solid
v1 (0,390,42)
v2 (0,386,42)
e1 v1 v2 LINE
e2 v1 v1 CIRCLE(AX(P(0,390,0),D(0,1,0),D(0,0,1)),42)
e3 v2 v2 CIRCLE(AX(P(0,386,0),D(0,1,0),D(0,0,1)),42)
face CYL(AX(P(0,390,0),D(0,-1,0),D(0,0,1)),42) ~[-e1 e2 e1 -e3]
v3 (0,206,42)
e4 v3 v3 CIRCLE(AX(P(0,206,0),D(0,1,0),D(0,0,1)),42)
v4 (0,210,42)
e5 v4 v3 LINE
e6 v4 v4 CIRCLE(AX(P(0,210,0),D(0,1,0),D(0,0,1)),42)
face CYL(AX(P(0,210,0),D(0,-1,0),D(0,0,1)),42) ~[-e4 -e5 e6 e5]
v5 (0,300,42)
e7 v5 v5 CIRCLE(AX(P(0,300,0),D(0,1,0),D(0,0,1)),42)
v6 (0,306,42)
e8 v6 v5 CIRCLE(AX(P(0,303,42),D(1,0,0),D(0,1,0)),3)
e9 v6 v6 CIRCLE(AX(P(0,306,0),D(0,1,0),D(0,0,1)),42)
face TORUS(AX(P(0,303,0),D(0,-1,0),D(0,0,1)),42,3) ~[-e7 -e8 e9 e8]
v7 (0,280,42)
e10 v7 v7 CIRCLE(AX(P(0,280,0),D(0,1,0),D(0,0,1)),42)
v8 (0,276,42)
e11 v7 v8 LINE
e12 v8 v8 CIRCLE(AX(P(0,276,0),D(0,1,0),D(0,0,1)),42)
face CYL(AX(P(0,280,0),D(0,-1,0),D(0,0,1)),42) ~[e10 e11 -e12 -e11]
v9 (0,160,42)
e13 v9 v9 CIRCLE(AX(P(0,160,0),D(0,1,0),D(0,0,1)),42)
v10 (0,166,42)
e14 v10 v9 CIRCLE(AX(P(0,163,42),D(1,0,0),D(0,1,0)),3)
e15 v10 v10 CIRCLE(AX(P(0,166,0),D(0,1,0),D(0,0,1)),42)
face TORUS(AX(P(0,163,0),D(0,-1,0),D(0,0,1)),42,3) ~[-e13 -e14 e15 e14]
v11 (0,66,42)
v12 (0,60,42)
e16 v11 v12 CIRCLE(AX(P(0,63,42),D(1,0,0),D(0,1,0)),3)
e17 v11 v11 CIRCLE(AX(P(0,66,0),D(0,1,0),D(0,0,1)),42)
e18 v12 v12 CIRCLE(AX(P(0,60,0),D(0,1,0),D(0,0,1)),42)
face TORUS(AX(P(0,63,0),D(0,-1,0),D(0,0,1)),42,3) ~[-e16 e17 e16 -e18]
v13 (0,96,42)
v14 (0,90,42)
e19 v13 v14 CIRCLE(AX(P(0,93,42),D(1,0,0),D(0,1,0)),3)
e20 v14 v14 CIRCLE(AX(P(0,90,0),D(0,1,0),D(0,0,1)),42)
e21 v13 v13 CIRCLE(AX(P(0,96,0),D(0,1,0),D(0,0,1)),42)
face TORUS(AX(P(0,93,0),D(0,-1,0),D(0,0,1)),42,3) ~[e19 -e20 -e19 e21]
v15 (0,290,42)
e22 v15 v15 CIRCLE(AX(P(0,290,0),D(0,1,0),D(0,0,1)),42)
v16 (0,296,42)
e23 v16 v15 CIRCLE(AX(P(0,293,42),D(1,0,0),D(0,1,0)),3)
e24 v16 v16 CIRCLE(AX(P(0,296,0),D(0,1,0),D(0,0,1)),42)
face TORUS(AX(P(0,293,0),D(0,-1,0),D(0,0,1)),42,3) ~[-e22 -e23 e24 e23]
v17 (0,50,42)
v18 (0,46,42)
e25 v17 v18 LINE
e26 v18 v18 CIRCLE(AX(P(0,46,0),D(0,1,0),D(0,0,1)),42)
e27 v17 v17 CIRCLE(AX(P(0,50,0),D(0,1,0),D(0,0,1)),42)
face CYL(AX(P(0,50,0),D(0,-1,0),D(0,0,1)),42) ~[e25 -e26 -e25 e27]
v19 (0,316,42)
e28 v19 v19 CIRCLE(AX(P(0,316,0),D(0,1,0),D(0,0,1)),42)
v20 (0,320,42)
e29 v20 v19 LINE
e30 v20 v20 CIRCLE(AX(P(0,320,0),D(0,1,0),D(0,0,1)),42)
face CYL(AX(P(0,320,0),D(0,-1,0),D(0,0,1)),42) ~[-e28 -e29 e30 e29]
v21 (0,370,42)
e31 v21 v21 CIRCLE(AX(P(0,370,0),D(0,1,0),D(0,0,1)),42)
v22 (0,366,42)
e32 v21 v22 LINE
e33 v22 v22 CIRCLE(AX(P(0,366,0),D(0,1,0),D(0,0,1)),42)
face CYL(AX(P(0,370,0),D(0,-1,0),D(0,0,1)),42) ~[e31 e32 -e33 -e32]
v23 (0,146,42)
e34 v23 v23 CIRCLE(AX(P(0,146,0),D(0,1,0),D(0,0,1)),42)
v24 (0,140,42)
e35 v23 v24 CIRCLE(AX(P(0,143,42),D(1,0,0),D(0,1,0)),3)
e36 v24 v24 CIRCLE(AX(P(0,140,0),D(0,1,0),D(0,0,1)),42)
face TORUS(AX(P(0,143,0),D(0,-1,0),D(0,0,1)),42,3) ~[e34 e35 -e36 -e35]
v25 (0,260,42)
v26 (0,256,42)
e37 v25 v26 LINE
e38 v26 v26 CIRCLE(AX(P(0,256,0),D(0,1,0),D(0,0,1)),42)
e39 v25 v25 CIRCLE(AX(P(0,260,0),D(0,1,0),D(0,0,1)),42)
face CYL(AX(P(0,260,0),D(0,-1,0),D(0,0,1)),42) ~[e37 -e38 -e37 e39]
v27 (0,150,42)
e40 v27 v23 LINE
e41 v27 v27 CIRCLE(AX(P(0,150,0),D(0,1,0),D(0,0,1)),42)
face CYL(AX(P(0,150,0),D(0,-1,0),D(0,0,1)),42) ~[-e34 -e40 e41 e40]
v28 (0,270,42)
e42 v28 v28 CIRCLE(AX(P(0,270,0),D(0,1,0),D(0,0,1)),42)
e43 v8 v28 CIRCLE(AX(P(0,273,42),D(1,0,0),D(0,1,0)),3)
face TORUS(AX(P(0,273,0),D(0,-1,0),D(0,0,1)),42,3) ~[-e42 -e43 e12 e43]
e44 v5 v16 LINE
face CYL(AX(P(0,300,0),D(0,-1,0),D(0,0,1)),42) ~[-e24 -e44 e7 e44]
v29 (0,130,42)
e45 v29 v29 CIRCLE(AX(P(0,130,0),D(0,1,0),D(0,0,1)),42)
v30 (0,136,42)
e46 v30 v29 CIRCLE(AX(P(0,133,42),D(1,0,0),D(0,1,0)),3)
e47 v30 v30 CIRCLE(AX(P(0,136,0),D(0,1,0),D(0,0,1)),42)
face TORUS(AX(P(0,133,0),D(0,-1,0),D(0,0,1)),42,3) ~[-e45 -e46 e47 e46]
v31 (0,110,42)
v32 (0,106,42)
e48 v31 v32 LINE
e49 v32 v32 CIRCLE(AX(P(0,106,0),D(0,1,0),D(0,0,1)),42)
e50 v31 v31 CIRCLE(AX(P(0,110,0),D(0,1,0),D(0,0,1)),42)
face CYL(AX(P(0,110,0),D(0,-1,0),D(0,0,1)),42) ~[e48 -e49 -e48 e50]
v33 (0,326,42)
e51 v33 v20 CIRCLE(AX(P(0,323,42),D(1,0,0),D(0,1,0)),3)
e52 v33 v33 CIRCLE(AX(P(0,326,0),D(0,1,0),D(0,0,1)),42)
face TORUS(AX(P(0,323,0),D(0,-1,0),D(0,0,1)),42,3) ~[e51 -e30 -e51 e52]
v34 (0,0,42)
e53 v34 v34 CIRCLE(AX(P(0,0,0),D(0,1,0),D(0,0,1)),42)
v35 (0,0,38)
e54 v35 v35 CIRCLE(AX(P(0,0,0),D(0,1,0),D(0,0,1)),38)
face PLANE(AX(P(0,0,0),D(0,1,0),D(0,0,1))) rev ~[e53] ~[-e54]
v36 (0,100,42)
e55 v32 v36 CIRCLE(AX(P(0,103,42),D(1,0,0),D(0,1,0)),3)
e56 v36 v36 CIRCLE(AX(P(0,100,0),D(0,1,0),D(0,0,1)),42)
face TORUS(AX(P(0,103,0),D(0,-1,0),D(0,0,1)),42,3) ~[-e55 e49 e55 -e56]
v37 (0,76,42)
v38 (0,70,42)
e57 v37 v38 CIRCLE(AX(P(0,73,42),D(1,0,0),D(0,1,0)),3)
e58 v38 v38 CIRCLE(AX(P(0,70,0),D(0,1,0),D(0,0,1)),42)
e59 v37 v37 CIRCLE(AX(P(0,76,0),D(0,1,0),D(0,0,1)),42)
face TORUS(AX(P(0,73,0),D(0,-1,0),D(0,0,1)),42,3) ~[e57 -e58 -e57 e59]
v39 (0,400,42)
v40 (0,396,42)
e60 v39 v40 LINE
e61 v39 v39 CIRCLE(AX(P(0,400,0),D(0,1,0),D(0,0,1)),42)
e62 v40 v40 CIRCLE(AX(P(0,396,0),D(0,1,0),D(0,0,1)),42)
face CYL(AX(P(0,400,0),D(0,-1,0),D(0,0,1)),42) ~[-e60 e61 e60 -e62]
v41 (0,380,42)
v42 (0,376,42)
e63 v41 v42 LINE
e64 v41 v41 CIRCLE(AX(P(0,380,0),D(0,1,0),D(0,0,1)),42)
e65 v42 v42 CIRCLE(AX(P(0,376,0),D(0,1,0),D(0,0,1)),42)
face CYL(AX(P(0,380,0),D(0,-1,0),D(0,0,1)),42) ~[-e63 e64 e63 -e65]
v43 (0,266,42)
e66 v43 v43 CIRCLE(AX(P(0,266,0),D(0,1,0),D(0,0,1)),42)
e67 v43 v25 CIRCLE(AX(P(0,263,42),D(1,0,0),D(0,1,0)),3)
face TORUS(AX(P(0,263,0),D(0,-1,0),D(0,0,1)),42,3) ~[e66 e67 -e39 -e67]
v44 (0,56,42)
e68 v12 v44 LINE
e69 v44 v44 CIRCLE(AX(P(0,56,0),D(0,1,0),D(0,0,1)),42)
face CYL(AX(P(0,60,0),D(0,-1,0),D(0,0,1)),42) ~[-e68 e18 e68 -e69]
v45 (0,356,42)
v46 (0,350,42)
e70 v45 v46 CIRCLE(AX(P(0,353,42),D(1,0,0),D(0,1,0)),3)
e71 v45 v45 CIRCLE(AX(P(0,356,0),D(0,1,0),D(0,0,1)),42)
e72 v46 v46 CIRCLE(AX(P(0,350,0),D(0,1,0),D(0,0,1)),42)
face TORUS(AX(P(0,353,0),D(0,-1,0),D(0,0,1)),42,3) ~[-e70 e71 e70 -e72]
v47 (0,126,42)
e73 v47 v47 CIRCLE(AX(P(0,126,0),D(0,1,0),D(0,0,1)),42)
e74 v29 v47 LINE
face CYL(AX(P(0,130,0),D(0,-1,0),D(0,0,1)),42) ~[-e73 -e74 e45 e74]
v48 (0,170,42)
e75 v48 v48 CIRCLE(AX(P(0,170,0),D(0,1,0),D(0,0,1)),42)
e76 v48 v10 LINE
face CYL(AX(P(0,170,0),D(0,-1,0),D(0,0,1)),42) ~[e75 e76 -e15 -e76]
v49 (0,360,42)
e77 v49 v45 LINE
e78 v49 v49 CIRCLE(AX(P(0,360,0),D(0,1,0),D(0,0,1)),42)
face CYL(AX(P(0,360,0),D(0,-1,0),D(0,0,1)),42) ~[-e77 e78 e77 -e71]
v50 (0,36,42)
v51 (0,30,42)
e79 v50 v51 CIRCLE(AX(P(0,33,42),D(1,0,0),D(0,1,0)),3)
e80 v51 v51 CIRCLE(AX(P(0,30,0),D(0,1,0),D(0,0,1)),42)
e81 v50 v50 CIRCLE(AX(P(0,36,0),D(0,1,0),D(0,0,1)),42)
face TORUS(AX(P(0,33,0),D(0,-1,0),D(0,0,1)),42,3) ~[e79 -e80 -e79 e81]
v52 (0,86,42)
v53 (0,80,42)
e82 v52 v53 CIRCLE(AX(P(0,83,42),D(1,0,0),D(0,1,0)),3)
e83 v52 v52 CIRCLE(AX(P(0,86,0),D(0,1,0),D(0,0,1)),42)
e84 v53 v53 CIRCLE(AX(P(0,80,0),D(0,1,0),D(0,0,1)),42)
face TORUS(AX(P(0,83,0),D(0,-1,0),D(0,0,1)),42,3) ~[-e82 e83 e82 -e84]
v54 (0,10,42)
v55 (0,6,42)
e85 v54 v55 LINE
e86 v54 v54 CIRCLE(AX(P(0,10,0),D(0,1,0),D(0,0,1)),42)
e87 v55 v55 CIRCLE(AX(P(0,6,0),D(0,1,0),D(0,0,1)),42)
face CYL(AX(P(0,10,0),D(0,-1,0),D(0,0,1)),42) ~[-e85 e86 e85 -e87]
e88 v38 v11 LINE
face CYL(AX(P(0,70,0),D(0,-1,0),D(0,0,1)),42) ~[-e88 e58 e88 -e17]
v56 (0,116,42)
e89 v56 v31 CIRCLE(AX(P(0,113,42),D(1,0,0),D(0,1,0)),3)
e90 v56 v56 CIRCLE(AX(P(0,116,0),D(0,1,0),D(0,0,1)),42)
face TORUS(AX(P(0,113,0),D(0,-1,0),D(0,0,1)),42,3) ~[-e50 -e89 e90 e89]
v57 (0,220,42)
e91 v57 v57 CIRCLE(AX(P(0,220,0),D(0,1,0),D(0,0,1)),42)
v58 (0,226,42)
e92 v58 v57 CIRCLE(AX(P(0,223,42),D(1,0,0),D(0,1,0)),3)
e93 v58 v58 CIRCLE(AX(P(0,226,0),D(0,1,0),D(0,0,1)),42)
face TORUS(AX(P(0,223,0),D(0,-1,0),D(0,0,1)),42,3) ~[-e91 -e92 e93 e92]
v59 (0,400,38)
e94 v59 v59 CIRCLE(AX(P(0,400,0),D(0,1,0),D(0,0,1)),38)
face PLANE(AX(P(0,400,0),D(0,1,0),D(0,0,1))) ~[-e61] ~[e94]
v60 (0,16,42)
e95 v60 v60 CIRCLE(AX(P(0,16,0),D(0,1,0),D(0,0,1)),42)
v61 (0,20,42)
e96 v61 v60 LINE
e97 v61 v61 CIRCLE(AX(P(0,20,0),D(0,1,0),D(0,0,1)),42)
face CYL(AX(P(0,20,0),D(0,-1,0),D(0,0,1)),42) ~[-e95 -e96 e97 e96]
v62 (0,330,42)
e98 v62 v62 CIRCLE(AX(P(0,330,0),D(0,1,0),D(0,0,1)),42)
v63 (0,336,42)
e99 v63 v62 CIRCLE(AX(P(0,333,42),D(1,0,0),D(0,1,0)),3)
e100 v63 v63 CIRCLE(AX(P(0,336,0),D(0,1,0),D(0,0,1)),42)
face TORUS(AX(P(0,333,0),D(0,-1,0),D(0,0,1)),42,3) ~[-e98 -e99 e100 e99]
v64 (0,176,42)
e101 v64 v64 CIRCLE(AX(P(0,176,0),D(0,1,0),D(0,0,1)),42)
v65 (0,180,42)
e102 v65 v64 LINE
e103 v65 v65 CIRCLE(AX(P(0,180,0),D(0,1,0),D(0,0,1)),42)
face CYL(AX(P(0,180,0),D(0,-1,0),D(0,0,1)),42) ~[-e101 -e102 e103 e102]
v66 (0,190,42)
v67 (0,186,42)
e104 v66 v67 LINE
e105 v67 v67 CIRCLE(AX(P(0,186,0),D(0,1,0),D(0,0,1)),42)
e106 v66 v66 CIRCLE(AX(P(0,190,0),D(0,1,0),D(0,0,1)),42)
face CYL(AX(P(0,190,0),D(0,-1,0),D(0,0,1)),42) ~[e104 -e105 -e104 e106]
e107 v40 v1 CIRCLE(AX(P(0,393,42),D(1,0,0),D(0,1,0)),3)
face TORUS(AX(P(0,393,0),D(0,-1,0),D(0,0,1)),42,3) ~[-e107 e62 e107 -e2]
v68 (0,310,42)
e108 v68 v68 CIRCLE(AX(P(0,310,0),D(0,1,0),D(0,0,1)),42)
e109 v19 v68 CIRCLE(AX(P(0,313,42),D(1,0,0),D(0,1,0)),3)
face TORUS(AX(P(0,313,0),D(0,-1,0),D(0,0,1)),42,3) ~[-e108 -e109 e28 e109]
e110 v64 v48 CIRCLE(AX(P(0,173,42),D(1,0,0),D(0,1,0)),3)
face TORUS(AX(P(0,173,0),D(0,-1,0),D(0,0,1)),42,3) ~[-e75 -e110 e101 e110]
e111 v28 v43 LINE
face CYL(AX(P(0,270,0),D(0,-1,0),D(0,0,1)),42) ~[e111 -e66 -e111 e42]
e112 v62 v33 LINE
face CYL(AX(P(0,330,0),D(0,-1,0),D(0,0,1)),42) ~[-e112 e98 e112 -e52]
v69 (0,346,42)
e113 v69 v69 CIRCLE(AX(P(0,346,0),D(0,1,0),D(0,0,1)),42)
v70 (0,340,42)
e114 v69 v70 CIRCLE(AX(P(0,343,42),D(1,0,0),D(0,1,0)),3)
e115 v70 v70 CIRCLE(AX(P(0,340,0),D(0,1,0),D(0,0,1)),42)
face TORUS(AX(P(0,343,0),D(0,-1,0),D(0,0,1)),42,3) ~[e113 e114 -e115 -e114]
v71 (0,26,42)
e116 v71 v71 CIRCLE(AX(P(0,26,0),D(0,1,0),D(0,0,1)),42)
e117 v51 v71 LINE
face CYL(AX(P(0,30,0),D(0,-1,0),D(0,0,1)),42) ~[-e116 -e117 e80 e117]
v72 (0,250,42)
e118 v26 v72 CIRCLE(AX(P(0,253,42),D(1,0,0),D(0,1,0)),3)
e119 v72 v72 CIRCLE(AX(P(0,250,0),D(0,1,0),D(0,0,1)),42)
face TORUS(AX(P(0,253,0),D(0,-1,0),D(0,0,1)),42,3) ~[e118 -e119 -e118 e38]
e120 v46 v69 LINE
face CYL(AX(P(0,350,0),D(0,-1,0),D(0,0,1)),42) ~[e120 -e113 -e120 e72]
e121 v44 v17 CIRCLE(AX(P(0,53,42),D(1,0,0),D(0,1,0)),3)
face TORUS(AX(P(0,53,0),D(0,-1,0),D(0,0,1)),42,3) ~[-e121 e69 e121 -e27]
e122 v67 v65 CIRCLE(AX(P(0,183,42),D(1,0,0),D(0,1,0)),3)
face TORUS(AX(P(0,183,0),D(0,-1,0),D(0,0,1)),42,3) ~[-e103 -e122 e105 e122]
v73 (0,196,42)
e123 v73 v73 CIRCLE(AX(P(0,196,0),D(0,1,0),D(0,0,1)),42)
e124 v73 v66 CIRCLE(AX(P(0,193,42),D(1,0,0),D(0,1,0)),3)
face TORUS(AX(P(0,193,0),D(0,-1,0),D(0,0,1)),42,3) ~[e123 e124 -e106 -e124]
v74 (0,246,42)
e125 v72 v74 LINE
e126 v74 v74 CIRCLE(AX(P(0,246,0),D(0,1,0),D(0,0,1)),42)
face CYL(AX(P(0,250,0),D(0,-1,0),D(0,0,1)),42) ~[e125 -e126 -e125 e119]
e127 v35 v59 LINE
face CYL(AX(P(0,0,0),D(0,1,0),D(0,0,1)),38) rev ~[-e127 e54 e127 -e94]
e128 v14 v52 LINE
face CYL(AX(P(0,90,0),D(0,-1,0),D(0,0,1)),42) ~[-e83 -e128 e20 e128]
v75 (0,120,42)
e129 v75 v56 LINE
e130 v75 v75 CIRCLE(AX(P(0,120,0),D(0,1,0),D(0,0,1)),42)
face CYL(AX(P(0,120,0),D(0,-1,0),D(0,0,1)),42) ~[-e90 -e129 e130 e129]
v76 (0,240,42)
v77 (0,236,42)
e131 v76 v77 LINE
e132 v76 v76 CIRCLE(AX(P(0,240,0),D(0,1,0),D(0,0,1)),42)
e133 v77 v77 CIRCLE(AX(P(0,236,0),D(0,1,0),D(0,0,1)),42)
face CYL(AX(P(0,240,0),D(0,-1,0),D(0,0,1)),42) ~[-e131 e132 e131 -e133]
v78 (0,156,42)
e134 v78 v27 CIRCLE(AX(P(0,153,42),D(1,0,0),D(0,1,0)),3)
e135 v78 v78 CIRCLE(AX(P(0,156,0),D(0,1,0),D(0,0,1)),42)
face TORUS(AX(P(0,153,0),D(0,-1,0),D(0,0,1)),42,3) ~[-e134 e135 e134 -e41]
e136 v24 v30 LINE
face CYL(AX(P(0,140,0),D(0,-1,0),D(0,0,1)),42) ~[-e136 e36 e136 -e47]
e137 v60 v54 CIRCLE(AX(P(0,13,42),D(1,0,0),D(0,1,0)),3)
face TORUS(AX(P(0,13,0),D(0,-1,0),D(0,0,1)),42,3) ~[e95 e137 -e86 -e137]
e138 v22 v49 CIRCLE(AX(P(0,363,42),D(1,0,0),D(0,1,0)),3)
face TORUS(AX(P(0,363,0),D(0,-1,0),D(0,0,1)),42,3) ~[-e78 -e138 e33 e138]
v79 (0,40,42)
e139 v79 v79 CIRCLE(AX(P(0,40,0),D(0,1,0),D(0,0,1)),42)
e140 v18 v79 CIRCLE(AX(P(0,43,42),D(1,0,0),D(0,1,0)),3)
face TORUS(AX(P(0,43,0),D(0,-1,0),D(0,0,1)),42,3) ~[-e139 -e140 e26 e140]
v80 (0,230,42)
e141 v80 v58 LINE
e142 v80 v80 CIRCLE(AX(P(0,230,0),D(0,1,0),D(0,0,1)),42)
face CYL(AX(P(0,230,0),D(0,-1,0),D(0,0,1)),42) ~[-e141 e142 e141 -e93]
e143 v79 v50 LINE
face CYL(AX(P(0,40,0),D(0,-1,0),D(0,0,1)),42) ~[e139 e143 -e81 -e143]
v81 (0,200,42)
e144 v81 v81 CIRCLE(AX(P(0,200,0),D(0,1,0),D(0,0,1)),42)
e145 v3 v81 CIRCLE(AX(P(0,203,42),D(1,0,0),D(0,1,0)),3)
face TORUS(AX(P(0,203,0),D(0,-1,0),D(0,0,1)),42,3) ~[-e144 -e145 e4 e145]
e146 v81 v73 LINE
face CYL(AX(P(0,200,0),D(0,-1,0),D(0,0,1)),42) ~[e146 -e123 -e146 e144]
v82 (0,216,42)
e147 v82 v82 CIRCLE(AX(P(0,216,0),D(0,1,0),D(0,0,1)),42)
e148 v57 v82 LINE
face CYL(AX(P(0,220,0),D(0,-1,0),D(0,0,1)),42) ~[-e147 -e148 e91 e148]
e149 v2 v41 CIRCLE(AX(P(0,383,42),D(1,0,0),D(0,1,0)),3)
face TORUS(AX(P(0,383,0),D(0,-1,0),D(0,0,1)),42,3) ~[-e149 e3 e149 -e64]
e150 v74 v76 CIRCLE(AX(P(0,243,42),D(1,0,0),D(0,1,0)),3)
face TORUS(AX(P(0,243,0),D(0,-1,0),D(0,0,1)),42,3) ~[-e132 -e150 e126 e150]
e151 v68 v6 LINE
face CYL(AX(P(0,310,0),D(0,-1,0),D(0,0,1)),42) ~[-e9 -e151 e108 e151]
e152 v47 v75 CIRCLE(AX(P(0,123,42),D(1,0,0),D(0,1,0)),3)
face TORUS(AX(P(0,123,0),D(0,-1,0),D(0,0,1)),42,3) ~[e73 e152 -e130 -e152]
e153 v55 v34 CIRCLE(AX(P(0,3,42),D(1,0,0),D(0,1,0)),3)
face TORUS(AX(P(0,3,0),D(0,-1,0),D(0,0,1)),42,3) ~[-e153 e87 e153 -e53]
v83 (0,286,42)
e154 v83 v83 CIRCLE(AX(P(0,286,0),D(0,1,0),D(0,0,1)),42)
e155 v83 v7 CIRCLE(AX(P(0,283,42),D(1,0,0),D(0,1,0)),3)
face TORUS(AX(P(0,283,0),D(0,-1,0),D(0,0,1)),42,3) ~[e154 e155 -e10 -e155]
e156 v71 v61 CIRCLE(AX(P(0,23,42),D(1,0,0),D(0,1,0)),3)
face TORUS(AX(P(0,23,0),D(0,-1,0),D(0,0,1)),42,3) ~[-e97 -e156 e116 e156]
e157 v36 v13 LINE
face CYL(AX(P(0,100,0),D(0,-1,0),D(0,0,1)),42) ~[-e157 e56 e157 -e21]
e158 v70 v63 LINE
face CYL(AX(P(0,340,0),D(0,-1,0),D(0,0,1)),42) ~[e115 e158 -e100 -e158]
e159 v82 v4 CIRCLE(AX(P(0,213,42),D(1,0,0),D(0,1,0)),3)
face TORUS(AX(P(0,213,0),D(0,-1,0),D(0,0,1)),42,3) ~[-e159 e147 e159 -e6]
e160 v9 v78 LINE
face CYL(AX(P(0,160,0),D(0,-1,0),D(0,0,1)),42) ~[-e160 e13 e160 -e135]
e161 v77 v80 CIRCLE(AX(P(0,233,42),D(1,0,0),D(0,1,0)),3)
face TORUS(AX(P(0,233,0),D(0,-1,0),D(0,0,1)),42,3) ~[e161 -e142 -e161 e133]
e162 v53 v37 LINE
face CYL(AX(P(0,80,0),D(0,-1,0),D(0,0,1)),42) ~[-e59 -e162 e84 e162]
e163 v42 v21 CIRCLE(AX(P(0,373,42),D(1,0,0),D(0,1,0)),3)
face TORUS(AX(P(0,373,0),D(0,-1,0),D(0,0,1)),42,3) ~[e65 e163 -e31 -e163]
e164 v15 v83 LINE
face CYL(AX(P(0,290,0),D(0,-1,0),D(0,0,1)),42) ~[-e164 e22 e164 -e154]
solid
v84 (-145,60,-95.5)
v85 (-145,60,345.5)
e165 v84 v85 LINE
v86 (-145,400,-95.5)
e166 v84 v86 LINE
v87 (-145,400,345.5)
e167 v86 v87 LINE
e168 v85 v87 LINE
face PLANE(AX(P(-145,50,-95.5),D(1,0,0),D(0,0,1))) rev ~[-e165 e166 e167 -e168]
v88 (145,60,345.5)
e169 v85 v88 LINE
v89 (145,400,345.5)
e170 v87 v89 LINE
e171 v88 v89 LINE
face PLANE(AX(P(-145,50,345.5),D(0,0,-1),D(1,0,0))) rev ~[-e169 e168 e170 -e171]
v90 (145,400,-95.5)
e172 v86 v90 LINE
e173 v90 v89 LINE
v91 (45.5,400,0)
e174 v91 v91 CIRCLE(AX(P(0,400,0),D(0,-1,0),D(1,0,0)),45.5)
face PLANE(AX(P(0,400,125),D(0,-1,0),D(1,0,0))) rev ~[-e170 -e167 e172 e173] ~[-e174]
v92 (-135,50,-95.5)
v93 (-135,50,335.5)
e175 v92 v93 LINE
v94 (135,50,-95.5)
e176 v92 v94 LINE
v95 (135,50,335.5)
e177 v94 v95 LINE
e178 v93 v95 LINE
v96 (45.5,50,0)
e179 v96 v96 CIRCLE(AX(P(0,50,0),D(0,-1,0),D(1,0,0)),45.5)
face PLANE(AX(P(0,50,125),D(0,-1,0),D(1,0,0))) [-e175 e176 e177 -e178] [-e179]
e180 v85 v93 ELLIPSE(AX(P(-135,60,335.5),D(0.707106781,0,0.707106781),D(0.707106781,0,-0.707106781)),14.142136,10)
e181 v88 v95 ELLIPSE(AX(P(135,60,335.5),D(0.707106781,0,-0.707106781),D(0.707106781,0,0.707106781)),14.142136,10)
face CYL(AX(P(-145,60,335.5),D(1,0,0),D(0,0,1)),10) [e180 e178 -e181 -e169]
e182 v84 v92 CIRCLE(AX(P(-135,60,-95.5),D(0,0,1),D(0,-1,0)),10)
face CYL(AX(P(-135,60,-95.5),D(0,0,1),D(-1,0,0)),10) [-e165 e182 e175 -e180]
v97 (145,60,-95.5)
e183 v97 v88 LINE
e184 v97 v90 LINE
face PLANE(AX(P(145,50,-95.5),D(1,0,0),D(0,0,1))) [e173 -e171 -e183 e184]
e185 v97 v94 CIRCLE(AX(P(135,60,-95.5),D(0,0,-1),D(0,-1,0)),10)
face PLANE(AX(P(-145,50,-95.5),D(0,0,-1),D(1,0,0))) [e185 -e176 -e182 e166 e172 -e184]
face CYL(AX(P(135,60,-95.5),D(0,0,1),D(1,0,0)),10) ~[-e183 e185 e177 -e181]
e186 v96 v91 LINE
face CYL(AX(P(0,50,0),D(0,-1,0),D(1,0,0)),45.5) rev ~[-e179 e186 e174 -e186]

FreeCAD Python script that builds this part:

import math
import FreeCAD as App
import Part
import Sketcher

V = App.Vector


def edges_at(feature, points):
    """Names of the edges that pass closest to the given points."""
    edges = feature.Shape.Edges
    near = lambda p: min(range(len(edges)), key=lambda i: edges[i].distToShape(Part.Vertex(*p))[0])
    return sorted({f"Edge{near(p) + 1}" for p in points})

doc = App.newDocument("Part")
body = doc.addObject("PartDesign::Body", "Body")

sketch1 = body.newObject("Sketcher::SketchObject", "Sketch")
sketch1.AttachmentSupport = (doc.getObject("YZ_Plane"), [""])
sketch1.MapMode = "FlatFace"
sketch1.addGeometry([
    Part.LineSegment(V(400, 38, 0), V(400, 42, 0)),
    Part.LineSegment(V(400, 42, 0), V(396, 42, 0)),
    Part.ArcOfCircle(Part.Circle(V(393, 42, 0), V(0, 0, 1), 3), math.radians(0), math.radians(180)),
    Part.LineSegment(V(390, 42, 0), V(386, 42, 0)),
    Part.ArcOfCircle(Part.Circle(V(383, 42, 0), V(0, 0, 1), 3), math.radians(0), math.radians(180)),
    Part.LineSegment(V(380, 42, 0), V(376, 42, 0)),
    Part.ArcOfCircle(Part.Circle(V(373, 42, 0), V(0, 0, 1), 3), math.radians(0), math.radians(180)),
    Part.LineSegment(V(370, 42, 0), V(366, 42, 0)),
    Part.ArcOfCircle(Part.Circle(V(363, 42, 0), V(0, 0, 1), 3), math.radians(0), math.radians(180)),
    Part.LineSegment(V(360, 42, 0), V(356, 42, 0)),
    Part.ArcOfCircle(Part.Circle(V(353, 42, 0), V(0, 0, 1), 3), math.radians(0), math.radians(180)),
    Part.LineSegment(V(350, 42, 0), V(346, 42, 0)),
    Part.ArcOfCircle(Part.Circle(V(343, 42, 0), V(0, 0, 1), 3), math.radians(0), math.radians(180)),
    Part.LineSegment(V(340, 42, 0), V(336, 42, 0)),
    Part.ArcOfCircle(Part.Circle(V(333, 42, 0), V(0, 0, 1), 3), math.radians(0), math.radians(180)),
    Part.LineSegment(V(330, 42, 0), V(326, 42, 0)),
    Part.ArcOfCircle(Part.Circle(V(323, 42, 0), V(0, 0, 1), 3), math.radians(0), math.radians(180)),
    Part.LineSegment(V(320, 42, 0), V(316, 42, 0)),
    Part.ArcOfCircle(Part.Circle(V(313, 42, 0), V(0, 0, 1), 3), math.radians(0), math.radians(180)),
    Part.LineSegment(V(310, 42, 0), V(306, 42, 0)),
    Part.ArcOfCircle(Part.Circle(V(303, 42, 0), V(0, 0, 1), 3), math.radians(0), math.radians(180)),
    Part.LineSegment(V(300, 42, 0), V(296, 42, 0)),
    Part.ArcOfCircle(Part.Circle(V(293, 42, 0), V(0, 0, 1), 3), math.radians(0), math.radians(180)),
    Part.LineSegment(V(290, 42, 0), V(286, 42, 0)),
    Part.ArcOfCircle(Part.Circle(V(283, 42, 0), V(0, 0, 1), 3), math.radians(0), math.radians(180)),
    Part.LineSegment(V(280, 42, 0), V(276, 42, 0)),
    Part.ArcOfCircle(Part.Circle(V(273, 42, 0), V(0, 0, 1), 3), math.radians(0), math.radians(180)),
    Part.LineSegment(V(270, 42, 0), V(266, 42, 0)),
    Part.ArcOfCircle(Part.Circle(V(263, 42, 0), V(0, 0, 1), 3), math.radians(0), math.radians(180)),
    Part.LineSegment(V(260, 42, 0), V(256, 42, 0)),
    Part.ArcOfCircle(Part.Circle(V(253, 42, 0), V(0, 0, 1), 3), math.radians(0), math.radians(180)),
    Part.LineSegment(V(250, 42, 0), V(246, 42, 0)),
    Part.ArcOfCircle(Part.Circle(V(243, 42, 0), V(0, 0, 1), 3), math.radians(0), math.radians(180)),
    Part.LineSegment(V(240, 42, 0), V(236, 42, 0)),
    Part.ArcOfCircle(Part.Circle(V(233, 42, 0), V(0, 0, 1), 3), math.radians(0), math.radians(180)),
    Part.LineSegment(V(230, 42, 0), V(226, 42, 0)),
    Part.ArcOfCircle(Part.Circle(V(223, 42, 0), V(0, 0, 1), 3), math.radians(0), math.radians(180)),
    Part.LineSegment(V(220, 42, 0), V(216, 42, 0)),
    Part.ArcOfCircle(Part.Circle(V(213, 42, 0), V(0, 0, 1), 3), math.radians(0), math.radians(180)),
    Part.LineSegment(V(210, 42, 0), V(206, 42, 0)),
    Part.ArcOfCircle(Part.Circle(V(203, 42, 0), V(0, 0, 1), 3), math.radians(0), math.radians(180)),
    Part.LineSegment(V(200, 42, 0), V(196, 42, 0)),
    Part.ArcOfCircle(Part.Circle(V(193, 42, 0), V(0, 0, 1), 3), math.radians(0), math.radians(180)),
    Part.LineSegment(V(190, 42, 0), V(186, 42, 0)),
    Part.ArcOfCircle(Part.Circle(V(183, 42, 0), V(0, 0, 1), 3), math.radians(0), math.radians(180)),
    Part.LineSegment(V(180, 42, 0), V(176, 42, 0)),
    Part.ArcOfCircle(Part.Circle(V(173, 42, 0), V(0, 0, 1), 3), math.radians(0), math.radians(180)),
    Part.LineSegment(V(170, 42, 0), V(166, 42, 0)),
    Part.ArcOfCircle(Part.Circle(V(163, 42, 0), V(0, 0, 1), 3), math.radians(0), math.radians(180)),
    Part.LineSegment(V(160, 42, 0), V(156, 42, 0)),
    Part.ArcOfCircle(Part.Circle(V(153, 42, 0), V(0, 0, 1), 3), math.radians(0), math.radians(180)),
    Part.LineSegment(V(150, 42, 0), V(146, 42, 0)),
    Part.ArcOfCircle(Part.Circle(V(143, 42, 0), V(0, 0, 1), 3), math.radians(0), math.radians(180)),
    Part.LineSegment(V(140, 42, 0), V(136, 42, 0)),
    Part.ArcOfCircle(Part.Circle(V(133, 42, 0), V(0, 0, 1), 3), math.radians(0), math.radians(180)),
    Part.LineSegment(V(130, 42, 0), V(126, 42, 0)),
    Part.ArcOfCircle(Part.Circle(V(123, 42, 0), V(0, 0, 1), 3), math.radians(0), math.radians(180)),
    Part.LineSegment(V(120, 42, 0), V(116, 42, 0)),
    Part.ArcOfCircle(Part.Circle(V(113, 42, 0), V(0, 0, 1), 3), math.radians(0), math.radians(180)),
    Part.LineSegment(V(110, 42, 0), V(106, 42, 0)),
    Part.ArcOfCircle(Part.Circle(V(103, 42, 0), V(0, 0, 1), 3), math.radians(0), math.radians(180)),
    Part.LineSegment(V(100, 42, 0), V(96, 42, 0)),
    Part.ArcOfCircle(Part.Circle(V(93, 42, 0), V(0, 0, 1), 3), math.radians(0), math.radians(180)),
    Part.LineSegment(V(90, 42, 0), V(86, 42, 0)),
    Part.ArcOfCircle(Part.Circle(V(83, 42, 0), V(0, 0, 1), 3), math.radians(0), math.radians(180)),
    Part.LineSegment(V(80, 42, 0), V(76, 42, 0)),
    Part.ArcOfCircle(Part.Circle(V(73, 42, 0), V(0, 0, 1), 3), math.radians(0), math.radians(180)),
    Part.LineSegment(V(70, 42, 0), V(66, 42, 0)),
    Part.ArcOfCircle(Part.Circle(V(63, 42, 0), V(0, 0, 1), 3), math.radians(0), math.radians(180)),
    Part.LineSegment(V(60, 42, 0), V(56, 42, 0)),
    Part.ArcOfCircle(Part.Circle(V(53, 42, 0), V(0, 0, 1), 3), math.radians(0), math.radians(180)),
    Part.LineSegment(V(50, 42, 0), V(46, 42, 0)),
    Part.ArcOfCircle(Part.Circle(V(43, 42, 0), V(0, 0, 1), 3), math.radians(0), math.radians(180)),
    Part.LineSegment(V(40, 42, 0), V(36, 42, 0)),
    Part.ArcOfCircle(Part.Circle(V(33, 42, 0), V(0, 0, 1), 3), math.radians(0), math.radians(180)),
    Part.LineSegment(V(30, 42, 0), V(26, 42, 0)),
    Part.ArcOfCircle(Part.Circle(V(23, 42, 0), V(0, 0, 1), 3), math.radians(0), math.radians(180)),
    Part.LineSegment(V(20, 42, 0), V(16, 42, 0)),
    Part.ArcOfCircle(Part.Circle(V(13, 42, 0), V(0, 0, 1), 3), math.radians(0), math.radians(180)),
    Part.LineSegment(V(10, 42, 0), V(6, 42, 0)),
    Part.ArcOfCircle(Part.Circle(V(3, 42, 0), V(0, 0, 1), 3), math.radians(0), math.radians(180)),
    Part.LineSegment(V(0, 42, 0), V(0, 38, 0)),
    Part.LineSegment(V(0, 38, 0), V(400, 38, 0)),
], False)
sketch1.addConstraint([
    Sketcher.Constraint("Coincident", 0, 2, 1, 1),
    Sketcher.Constraint("Coincident", 1, 2, 2, 1),
    Sketcher.Constraint("Coincident", 2, 2, 3, 1),
    Sketcher.Constraint("Coincident", 3, 2, 4, 1),
    Sketcher.Constraint("Coincident", 4, 2, 5, 1),
    Sketcher.Constraint("Coincident", 5, 2, 6, 1),
    Sketcher.Constraint("Coincident", 6, 2, 7, 1),
    Sketcher.Constraint("Coincident", 7, 2, 8, 1),
    Sketcher.Constraint("Coincident", 8, 2, 9, 1),
    Sketcher.Constraint("Coincident", 9, 2, 10, 1),
    Sketcher.Constraint("Coincident", 10, 2, 11, 1),
    Sketcher.Constraint("Coincident", 11, 2, 12, 1),
    Sketcher.Constraint("Coincident", 12, 2, 13, 1),
    Sketcher.Constraint("Coincident", 13, 2, 14, 1),
    Sketcher.Constraint("Coincident", 14, 2, 15, 1),
    Sketcher.Constraint("Coincident", 15, 2, 16, 1),
    Sketcher.Constraint("Coincident", 16, 2, 17, 1),
    Sketcher.Constraint("Coincident", 17, 2, 18, 1),
    Sketcher.Constraint("Coincident", 18, 2, 19, 1),
    Sketcher.Constraint("Coincident", 19, 2, 20, 1),
    Sketcher.Constraint("Coincident", 20, 2, 21, 1),
    Sketcher.Constraint("Coincident", 21, 2, 22, 1),
    Sketcher.Constraint("Coincident", 22, 2, 23, 1),
    Sketcher.Constraint("Coincident", 23, 2, 24, 1),
    Sketcher.Constraint("Coincident", 24, 2, 25, 1),
    Sketcher.Constraint("Coincident", 25, 2, 26, 1),
    Sketcher.Constraint("Coincident", 26, 2, 27, 1),
    Sketcher.Constraint("Coincident", 27, 2, 28, 1),
    Sketcher.Constraint("Coincident", 28, 2, 29, 1),
    Sketcher.Constraint("Coincident", 29, 2, 30, 1),
    Sketcher.Constraint("Coincident", 30, 2, 31, 1),
    Sketcher.Constraint("Coincident", 31, 2, 32, 1),
    Sketcher.Constraint("Coincident", 32, 2, 33, 1),
    Sketcher.Constraint("Coincident", 33, 2, 34, 1),
    Sketcher.Constraint("Coincident", 34, 2, 35, 1),
    Sketcher.Constraint("Coincident", 35, 2, 36, 1),
    Sketcher.Constraint("Coincident", 36, 2, 37, 1),
    Sketcher.Constraint("Coincident", 37, 2, 38, 1),
    Sketcher.Constraint("Coincident", 38, 2, 39, 1),
    Sketcher.Constraint("Coincident", 39, 2, 40, 1),
    Sketcher.Constraint("Coincident", 40, 2, 41, 1),
    Sketcher.Constraint("Coincident", 41, 2, 42, 1),
    Sketcher.Constraint("Coincident", 42, 2, 43, 1),
    Sketcher.Constraint("Coincident", 43, 2, 44, 1),
    Sketcher.Constraint("Coincident", 44, 2, 45, 1),
    Sketcher.Constraint("Coincident", 45, 2, 46, 1),
    Sketcher.Constraint("Coincident", 46, 2, 47, 1),
    Sketcher.Constraint("Coincident", 47, 2, 48, 1),
    Sketcher.Constraint("Coincident", 48, 2, 49, 1),
    Sketcher.Constraint("Coincident", 49, 2, 50, 1),
    Sketcher.Constraint("Coincident", 50, 2, 51, 1),
    Sketcher.Constraint("Coincident", 51, 2, 52, 1),
    Sketcher.Constraint("Coincident", 52, 2, 53, 1),
    Sketcher.Constraint("Coincident", 53, 2, 54, 1),
    Sketcher.Constraint("Coincident", 54, 2, 55, 1),
    Sketcher.Constraint("Coincident", 55, 2, 56, 1),
    Sketcher.Constraint("Coincident", 56, 2, 57, 1),
    Sketcher.Constraint("Coincident", 57, 2, 58, 1),
    Sketcher.Constraint("Coincident", 58, 2, 59, 1),
    Sketcher.Constraint("Coincident", 59, 2, 60, 1),
    Sketcher.Constraint("Coincident", 60, 2, 61, 1),
    Sketcher.Constraint("Coincident", 61, 2, 62, 1),
    Sketcher.Constraint("Coincident", 62, 2, 63, 1),
    Sketcher.Constraint("Coincident", 63, 2, 64, 1),
    Sketcher.Constraint("Coincident", 64, 2, 65, 1),
    Sketcher.Constraint("Coincident", 65, 2, 66, 1),
    Sketcher.Constraint("Coincident", 66, 2, 67, 1),
    Sketcher.Constraint("Coincident", 67, 2, 68, 1),
    Sketcher.Constraint("Coincident", 68, 2, 69, 1),
    Sketcher.Constraint("Coincident", 69, 2, 70, 1),
    Sketcher.Constraint("Coincident", 70, 2, 71, 1),
    Sketcher.Constraint("Coincident", 71, 2, 72, 1),
    Sketcher.Constraint("Coincident", 72, 2, 73, 1),
    Sketcher.Constraint("Coincident", 73, 2, 74, 1),
    Sketcher.Constraint("Coincident", 74, 2, 75, 1),
    Sketcher.Constraint("Coincident", 75, 2, 76, 1),
    Sketcher.Constraint("Coincident", 76, 2, 77, 1),
    Sketcher.Constraint("Coincident", 77, 2, 78, 1),
    Sketcher.Constraint("Coincident", 78, 2, 79, 1),
    Sketcher.Constraint("Coincident", 79, 2, 80, 1),
    Sketcher.Constraint("Tangent", 80, 2, 81, 1),
    Sketcher.Constraint("Coincident", 81, 2, 82, 1),
    Sketcher.Constraint("Coincident", 82, 2, 0, 1),
    Sketcher.Constraint("Vertical", 0),
    Sketcher.Constraint("Horizontal", 1),
    Sketcher.Constraint("Horizontal", 3),
    Sketcher.Constraint("Horizontal", 5),
    Sketcher.Constraint("Horizontal", 7),
    Sketcher.Constraint("Horizontal", 9),
    Sketcher.Constraint("Horizontal", 11),
    Sketcher.Constraint("Horizontal", 13),
    Sketcher.Constraint("Horizontal", 15),
    Sketcher.Constraint("Horizontal", 17),
    Sketcher.Constraint("Horizontal", 19),
    Sketcher.Constraint("Horizontal", 21),
    Sketcher.Constraint("Horizontal", 23),
    Sketcher.Constraint("Horizontal", 25),
    Sketcher.Constraint("Horizontal", 27),
    Sketcher.Constraint("Horizontal", 29),
    Sketcher.Constraint("Horizontal", 31),
    Sketcher.Constraint("Horizontal", 33),
    Sketcher.Constraint("Horizontal", 35),
    Sketcher.Constraint("Horizontal", 37),
    Sketcher.Constraint("Horizontal", 39),
    Sketcher.Constraint("Horizontal", 41),
    Sketcher.Constraint("Horizontal", 43),
    Sketcher.Constraint("Horizontal", 45),
    Sketcher.Constraint("Horizontal", 47),
    Sketcher.Constraint("Horizontal", 49),
    Sketcher.Constraint("Horizontal", 51),
    Sketcher.Constraint("Horizontal", 53),
    Sketcher.Constraint("Horizontal", 55),
    Sketcher.Constraint("Horizontal", 57),
    Sketcher.Constraint("Horizontal", 59),
    Sketcher.Constraint("Horizontal", 61),
    Sketcher.Constraint("Horizontal", 63),
    Sketcher.Constraint("Horizontal", 65),
    Sketcher.Constraint("Horizontal", 67),
    Sketcher.Constraint("Horizontal", 69),
    Sketcher.Constraint("Horizontal", 71),
    Sketcher.Constraint("Horizontal", 73),
    Sketcher.Constraint("Horizontal", 75),
    Sketcher.Constraint("Horizontal", 77),
    Sketcher.Constraint("Horizontal", 79),
    Sketcher.Constraint("Vertical", 81),
    Sketcher.Constraint("Horizontal", 82),
    Sketcher.Constraint("Equal", 2, 4),
    Sketcher.Constraint("Equal", 4, 6),
    Sketcher.Constraint("Equal", 6, 8),
    Sketcher.Constraint("Equal", 8, 10),
    Sketcher.Constraint("Equal", 10, 12),
    Sketcher.Constraint("Equal", 12, 14),
    Sketcher.Constraint("Equal", 14, 16),
    Sketcher.Constraint("Equal", 16, 18),
    Sketcher.Constraint("Equal", 18, 20),
    Sketcher.Constraint("Equal", 20, 22),
    Sketcher.Constraint("Equal", 22, 24),
    Sketcher.Constraint("Equal", 24, 26),
    Sketcher.Constraint("Equal", 26, 28),
    Sketcher.Constraint("Equal", 28, 30),
    Sketcher.Constraint("Equal", 30, 32),
    Sketcher.Constraint("Equal", 32, 34),
    Sketcher.Constraint("Equal", 34, 36),
    Sketcher.Constraint("Equal", 36, 38),
    Sketcher.Constraint("Equal", 38, 40),
    Sketcher.Constraint("Equal", 40, 42),
    Sketcher.Constraint("Equal", 42, 44),
    Sketcher.Constraint("Equal", 44, 46),
    Sketcher.Constraint("Equal", 46, 48),
    Sketcher.Constraint("Equal", 48, 50),
    Sketcher.Constraint("Equal", 50, 52),
    Sketcher.Constraint("Equal", 52, 54),
    Sketcher.Constraint("Equal", 54, 56),
    Sketcher.Constraint("Equal", 56, 58),
    Sketcher.Constraint("Equal", 58, 60),
    Sketcher.Constraint("Equal", 60, 62),
    Sketcher.Constraint("Equal", 62, 64),
    Sketcher.Constraint("Equal", 64, 66),
    Sketcher.Constraint("Equal", 66, 68),
    Sketcher.Constraint("Equal", 68, 70),
    Sketcher.Constraint("Equal", 70, 72),
    Sketcher.Constraint("Equal", 72, 74),
    Sketcher.Constraint("Equal", 74, 76),
    Sketcher.Constraint("Equal", 76, 78),
    Sketcher.Constraint("Equal", 78, 80),
    Sketcher.Constraint("PointOnObject", 80, 2, -2),
    Sketcher.Constraint("Horizontal", 2, 3, 4, 3),
    Sketcher.Constraint("Horizontal", 4, 3, 6, 3),
    Sketcher.Constraint("Horizontal", 6, 3, 8, 3),
    Sketcher.Constraint("Horizontal", 8, 3, 10, 3),
    Sketcher.Constraint("Horizontal", 10, 3, 12, 3),
    Sketcher.Constraint("Horizontal", 12, 3, 14, 3),
    Sketcher.Constraint("Horizontal", 14, 3, 16, 3),
    Sketcher.Constraint("Horizontal", 16, 3, 18, 3),
    Sketcher.Constraint("Horizontal", 18, 3, 20, 3),
    Sketcher.Constraint("Horizontal", 20, 3, 22, 3),
    Sketcher.Constraint("Horizontal", 22, 3, 24, 3),
    Sketcher.Constraint("Horizontal", 24, 3, 26, 3),
    Sketcher.Constraint("Horizontal", 26, 3, 28, 3),
    Sketcher.Constraint("Horizontal", 28, 3, 30, 3),
    Sketcher.Constraint("Horizontal", 30, 3, 32, 3),
    Sketcher.Constraint("Horizontal", 32, 3, 34, 3),
    Sketcher.Constraint("Horizontal", 34, 3, 36, 3),
    Sketcher.Constraint("Horizontal", 36, 3, 38, 3),
    Sketcher.Constraint("Horizontal", 38, 3, 40, 3),
    Sketcher.Constraint("Horizontal", 40, 3, 42, 3),
    Sketcher.Constraint("Horizontal", 42, 3, 44, 3),
    Sketcher.Constraint("Horizontal", 44, 3, 46, 3),
    Sketcher.Constraint("Horizontal", 46, 3, 48, 3),
    Sketcher.Constraint("Horizontal", 48, 3, 50, 3),
    Sketcher.Constraint("Horizontal", 50, 3, 52, 3),
    Sketcher.Constraint("Horizontal", 52, 3, 54, 3),
    Sketcher.Constraint("Horizontal", 54, 3, 56, 3),
    Sketcher.Constraint("Horizontal", 56, 3, 58, 3),
    Sketcher.Constraint("Horizontal", 58, 3, 60, 3),
    Sketcher.Constraint("Horizontal", 60, 3, 62, 3),
    Sketcher.Constraint("Horizontal", 62, 3, 64, 3),
    Sketcher.Constraint("Horizontal", 64, 3, 66, 3),
    Sketcher.Constraint("Horizontal", 66, 3, 68, 3),
    Sketcher.Constraint("Horizontal", 68, 3, 70, 3),
    Sketcher.Constraint("Horizontal", 70, 3, 72, 3),
    Sketcher.Constraint("Horizontal", 72, 3, 74, 3),
    Sketcher.Constraint("Horizontal", 74, 3, 76, 3),
    Sketcher.Constraint("Horizontal", 76, 3, 78, 3),
    Sketcher.Constraint("Horizontal", 78, 3, 80, 3),
    Sketcher.Constraint("Horizontal", 80, 3, 0, 2),
    Sketcher.Constraint("Horizontal", 1, 2, 2, 2),
    Sketcher.Constraint("Horizontal", 3, 2, 4, 2),
    Sketcher.Constraint("Horizontal", 5, 2, 6, 2),
    Sketcher.Constraint("Horizontal", 7, 2, 8, 2),
    Sketcher.Constraint("Horizontal", 9, 2, 10, 2),
    Sketcher.Constraint("Horizontal", 11, 2, 12, 2),
    Sketcher.Constraint("Horizontal", 13, 2, 14, 2),
    Sketcher.Constraint("Horizontal", 15, 2, 16, 2),
    Sketcher.Constraint("Horizontal", 17, 2, 18, 2),
    Sketcher.Constraint("Horizontal", 19, 2, 20, 2),
    Sketcher.Constraint("Horizontal", 21, 2, 22, 2),
    Sketcher.Constraint("Horizontal", 23, 2, 24, 2),
    Sketcher.Constraint("Horizontal", 25, 2, 26, 2),
    Sketcher.Constraint("Horizontal", 27, 2, 28, 2),
    Sketcher.Constraint("Horizontal", 29, 2, 30, 2),
    Sketcher.Constraint("Horizontal", 31, 2, 32, 2),
    Sketcher.Constraint("Horizontal", 33, 2, 34, 2),
    Sketcher.Constraint("Horizontal", 35, 2, 36, 2),
    Sketcher.Constraint("Horizontal", 37, 2, 38, 2),
    Sketcher.Constraint("Horizontal", 39, 2, 40, 2),
    Sketcher.Constraint("Horizontal", 41, 2, 42, 2),
    Sketcher.Constraint("Horizontal", 43, 2, 44, 2),
    Sketcher.Constraint("Horizontal", 45, 2, 46, 2),
    Sketcher.Constraint("Horizontal", 47, 2, 48, 2),
    Sketcher.Constraint("Horizontal", 49, 2, 50, 2),
    Sketcher.Constraint("Horizontal", 51, 2, 52, 2),
    Sketcher.Constraint("Horizontal", 53, 2, 54, 2),
    Sketcher.Constraint("Horizontal", 55, 2, 56, 2),
    Sketcher.Constraint("Horizontal", 57, 2, 58, 2),
    Sketcher.Constraint("Horizontal", 59, 2, 60, 2),
    Sketcher.Constraint("Horizontal", 61, 2, 62, 2),
    Sketcher.Constraint("Horizontal", 63, 2, 64, 2),
    Sketcher.Constraint("Horizontal", 65, 2, 66, 2),
    Sketcher.Constraint("Horizontal", 67, 2, 68, 2),
    Sketcher.Constraint("Horizontal", 69, 2, 70, 2),
    Sketcher.Constraint("Horizontal", 71, 2, 72, 2),
    Sketcher.Constraint("Horizontal", 73, 2, 74, 2),
    Sketcher.Constraint("Horizontal", 75, 2, 76, 2),
    Sketcher.Constraint("Horizontal", 77, 2, 78, 2),
    Sketcher.Constraint("Equal", 1, 3),
    Sketcher.Constraint("Equal", 3, 5),
    Sketcher.Constraint("Equal", 5, 7),
    Sketcher.Constraint("Equal", 7, 9),
    Sketcher.Constraint("Equal", 9, 11),
    Sketcher.Constraint("Equal", 11, 13),
    Sketcher.Constraint("Equal", 13, 15),
    Sketcher.Constraint("Equal", 15, 17),
    Sketcher.Constraint("Equal", 17, 19),
    Sketcher.Constraint("Equal", 19, 21),
    Sketcher.Constraint("Equal", 21, 23),
    Sketcher.Constraint("Equal", 23, 25),
    Sketcher.Constraint("Equal", 25, 27),
    Sketcher.Constraint("Equal", 27, 29),
    Sketcher.Constraint("Equal", 29, 31),
    Sketcher.Constraint("Equal", 31, 33),
    Sketcher.Constraint("Equal", 33, 35),
    Sketcher.Constraint("Equal", 35, 37),
    Sketcher.Constraint("Equal", 37, 39),
    Sketcher.Constraint("Equal", 39, 41),
    Sketcher.Constraint("Equal", 41, 43),
    Sketcher.Constraint("Equal", 43, 45),
    Sketcher.Constraint("Equal", 45, 47),
    Sketcher.Constraint("Equal", 47, 49),
    Sketcher.Constraint("Equal", 49, 51),
    Sketcher.Constraint("Equal", 51, 53),
    Sketcher.Constraint("Equal", 53, 55),
    Sketcher.Constraint("Equal", 55, 57),
    Sketcher.Constraint("Equal", 57, 59),
    Sketcher.Constraint("Equal", 59, 61),
    Sketcher.Constraint("Equal", 61, 63),
    Sketcher.Constraint("Equal", 63, 65),
    Sketcher.Constraint("Equal", 65, 67),
    Sketcher.Constraint("Equal", 67, 69),
    Sketcher.Constraint("Equal", 69, 71),
    Sketcher.Constraint("Equal", 71, 73),
    Sketcher.Constraint("Equal", 73, 75),
    Sketcher.Constraint("Equal", 75, 77),
    Sketcher.Constraint("Equal", 77, 79),
    Sketcher.Constraint("Equal", 79, 0),
    Sketcher.Constraint("Radius", 2, 3.0),
    Sketcher.Constraint("DistanceX", 1, 2, 1, 1, 4.0),
    Sketcher.Constraint("DistanceY", -1, 1, 2, 3, 42.0),
])
revolution = body.newObject("PartDesign::Revolution", "Revolution")
revolution.Profile = sketch1
revolution.ReferenceAxis = (sketch1, ["H_Axis"])
revolution.Angle = 360
body2 = doc.addObject("PartDesign::Body", "Body001")

sketch2 = body2.newObject("Sketcher::SketchObject", "Sketch001")
sketch2.AttachmentSupport = (doc.getObject("XZ_Plane001"), [""])
sketch2.MapMode = "FlatFace"
sketch2.AttachmentOffset = App.Placement(V(0, 0, -50), App.Rotation())
sketch2.addGeometry([
    Part.LineSegment(V(-145, 345.5, 0), V(-145, -95.5, 0)),
    Part.LineSegment(V(-145, -95.5, 0), V(145, -95.5, 0)),
    Part.LineSegment(V(145, -95.5, 0), V(145, 345.5, 0)),
    Part.LineSegment(V(145, 345.5, 0), V(-145, 345.5, 0)),
    Part.Circle(V(0, 0, 0), V(0, 0, 1), 45.5),
], False)
sketch2.addConstraint([
    Sketcher.Constraint("Coincident", 0, 2, 1, 1),
    Sketcher.Constraint("Coincident", 1, 2, 2, 1),
    Sketcher.Constraint("Coincident", 2, 2, 3, 1),
    Sketcher.Constraint("Coincident", 3, 2, 0, 1),
    Sketcher.Constraint("Vertical", 0),
    Sketcher.Constraint("Horizontal", 1),
    Sketcher.Constraint("Vertical", 2),
    Sketcher.Constraint("Horizontal", 3),
    Sketcher.Constraint("Coincident", 4, 3, -1, 1),
    Sketcher.Constraint("Diameter", 4, 91.0),
    Sketcher.Constraint("DistanceX", 1, 1, 1, 2, 290.0),
    Sketcher.Constraint("DistanceY", 0, 2, 0, 1, 441.0),
    Sketcher.Constraint("DistanceX", 0, 2, -1, 1, 145.0),
    Sketcher.Constraint("DistanceY", 0, 2, -1, 1, 95.5),
])
pad1 = body2.newObject("PartDesign::Pad", "Pad")
pad1.Profile = sketch2
pad1.Length = 350
pad1.Reversed = True
doc.recompute()

fillet = body2.newObject("PartDesign::Fillet", "Fillet")
fillet.Base = (pad1, edges_at(pad1, [(0, 50, 345.5), (145, 50, 125), (-145, 50, 125)]))
fillet.Radius = 10

doc.recompute()
